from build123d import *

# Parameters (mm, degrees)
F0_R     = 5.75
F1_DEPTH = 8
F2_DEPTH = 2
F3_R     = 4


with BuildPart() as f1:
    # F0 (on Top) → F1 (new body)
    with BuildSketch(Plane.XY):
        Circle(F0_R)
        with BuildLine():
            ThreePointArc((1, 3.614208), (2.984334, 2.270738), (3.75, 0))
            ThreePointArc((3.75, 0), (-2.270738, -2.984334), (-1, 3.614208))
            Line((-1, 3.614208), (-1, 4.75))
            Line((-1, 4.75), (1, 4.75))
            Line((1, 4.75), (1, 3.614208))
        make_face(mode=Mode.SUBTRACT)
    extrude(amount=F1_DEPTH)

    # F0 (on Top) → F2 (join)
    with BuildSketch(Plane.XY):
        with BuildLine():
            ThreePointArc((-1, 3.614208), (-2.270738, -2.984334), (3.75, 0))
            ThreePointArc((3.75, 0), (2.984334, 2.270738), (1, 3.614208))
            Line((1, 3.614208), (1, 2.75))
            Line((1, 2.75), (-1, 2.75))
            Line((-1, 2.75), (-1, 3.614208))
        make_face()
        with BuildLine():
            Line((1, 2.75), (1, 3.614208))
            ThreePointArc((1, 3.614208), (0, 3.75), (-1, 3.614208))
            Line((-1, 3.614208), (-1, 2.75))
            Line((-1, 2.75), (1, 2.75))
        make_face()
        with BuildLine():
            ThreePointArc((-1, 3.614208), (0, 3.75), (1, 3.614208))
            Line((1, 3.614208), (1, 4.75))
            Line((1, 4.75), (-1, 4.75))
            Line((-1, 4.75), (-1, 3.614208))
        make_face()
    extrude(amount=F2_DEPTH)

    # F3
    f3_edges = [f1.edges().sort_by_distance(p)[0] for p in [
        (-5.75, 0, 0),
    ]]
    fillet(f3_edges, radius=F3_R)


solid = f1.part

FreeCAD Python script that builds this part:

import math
import FreeCAD as App
import Part
import Sketcher

V = App.Vector


def edges_at(feature, points):
    """Names of the edges that pass closest to the given points."""
    edges = feature.Shape.Edges
    near = lambda p: min(range(len(edges)), key=lambda i: edges[i].distToShape(Part.Vertex(*p))[0])
    return sorted({f"Edge{near(p) + 1}" for p in points})

doc = App.newDocument("Part")
body = doc.addObject("PartDesign::Body", "Body")

sketch1 = body.newObject("Sketcher::SketchObject", "Sketch")
sketch1.AttachmentSupport = (doc.getObject("XY_Plane"), [""])
sketch1.MapMode = "FlatFace"
sketch1.addGeometry([
    Part.Circle(V(0, 0, 0), V(0, 0, 1), 5.8),
    Part.LineSegment(V(1, 4.8, 0), V(1, 3.6, 0)),
    Part.ArcOfCircle(Part.Circle(V(0, 0, 0), V(0, 0, 1), 3.7), math.radians(0), math.radians(75)),
    Part.ArcOfCircle(Part.Circle(V(0, 0, 0), V(0, 0, 1), 3.8), math.radians(105), math.radians(360)),
    Part.LineSegment(V(-1, 3.6, 0), V(-1, 4.8, 0)),
    Part.LineSegment(V(-1, 4.8, 0), V(1, 4.8, 0)),
], False)
sketch1.addConstraint([
    Sketcher.Constraint("Coincident", 1, 2, 2, 2),
    Sketcher.Constraint("Tangent", 2, 1, 3, 2),
    Sketcher.Constraint("Coincident", 3, 1, 4, 1),
    Sketcher.Constraint("Coincident", 4, 2, 5, 1),
    Sketcher.Constraint("Coincident", 5, 2, 1, 1),
    Sketcher.Constraint("Vertical", 1),
    Sketcher.Constraint("Vertical", 4),
    Sketcher.Constraint("Horizontal", 5),
    Sketcher.Constraint("Coincident", 0, 3, -1, 1),
    Sketcher.Constraint("Coincident", 2, 3, -1, 1),
    Sketcher.Constraint("Equal", 2, 3),
    Sketcher.Constraint("PointOnObject", 2, 1, -1),
    Sketcher.Constraint("Horizontal", 1, 2, 3, 1),
    Sketcher.Constraint("Diameter", 0, 11.5),
    Sketcher.Constraint("DistanceX", 5, 1, 5, 2, 2.0),
    Sketcher.Constraint("Radius", 2, 3.75),
    Sketcher.Constraint("DistanceY", -1, 1, 4, 2, 4.75),
])
pad1 = body.newObject("PartDesign::Pad", "Pad")
pad1.Profile = sketch1
pad1.Length = 8

sketch2 = body.newObject("Sketcher::SketchObject", "Sketch001")
sketch2.AttachmentSupport = (doc.getObject("XY_Plane"), [""])
sketch2.MapMode = "FlatFace"
sketch2.addGeometry([
    Part.ArcOfCircle(Part.Circle(V(0, 0, 0), V(0, 0, 1), 3.8), math.radians(105), math.radians(360)),
    Part.ArcOfCircle(Part.Circle(V(0, 0, 0), V(0, 0, 1), 3.7), math.radians(0), math.radians(75)),
    Part.LineSegment(V(1, 3.6, 0), V(1, 4.8, 0)),
    Part.LineSegment(V(1, 4.8, 0), V(-1, 4.8, 0)),
    Part.LineSegment(V(-1, 4.8, 0), V(-1, 3.6, 0)),
], False)
sketch2.addConstraint([
    Sketcher.Constraint("Tangent", 0, 2, 1, 1),
    Sketcher.Constraint("Coincident", 1, 2, 2, 1),
    Sketcher.Constraint("Coincident", 2, 2, 3, 1),
    Sketcher.Constraint("Coincident", 3, 2, 4, 1),
    Sketcher.Constraint("Coincident", 4, 2, 0, 1),
    Sketcher.Constraint("Vertical", 2),
    Sketcher.Constraint("Horizontal", 3),
    Sketcher.Constraint("Vertical", 4),
    Sketcher.Constraint("Coincident", 0, 3, -1, 1),
    Sketcher.Constraint("Equal", 0, 1),
    Sketcher.Constraint("PointOnObject", 0, 2, -1),
    Sketcher.Constraint("Horizontal", 1, 2, 4, 2),
    Sketcher.Constraint("DistanceX", 3, 2, 3, 1, 2.0),
    Sketcher.Constraint("Radius", 0, 3.75),
    Sketcher.Constraint("DistanceY", -1, 1, 2, 2, 4.75),
])
pad2 = body.newObject("PartDesign::Pad", "Pad001")
pad2.Profile = sketch2
pad2.Length = 2
doc.recompute()

fillet = body.newObject("PartDesign::Fillet", "Fillet")
fillet.Base = (pad2, edges_at(pad2, [(-5.75, 0, 0)]))
fillet.Radius = 4

doc.recompute()
